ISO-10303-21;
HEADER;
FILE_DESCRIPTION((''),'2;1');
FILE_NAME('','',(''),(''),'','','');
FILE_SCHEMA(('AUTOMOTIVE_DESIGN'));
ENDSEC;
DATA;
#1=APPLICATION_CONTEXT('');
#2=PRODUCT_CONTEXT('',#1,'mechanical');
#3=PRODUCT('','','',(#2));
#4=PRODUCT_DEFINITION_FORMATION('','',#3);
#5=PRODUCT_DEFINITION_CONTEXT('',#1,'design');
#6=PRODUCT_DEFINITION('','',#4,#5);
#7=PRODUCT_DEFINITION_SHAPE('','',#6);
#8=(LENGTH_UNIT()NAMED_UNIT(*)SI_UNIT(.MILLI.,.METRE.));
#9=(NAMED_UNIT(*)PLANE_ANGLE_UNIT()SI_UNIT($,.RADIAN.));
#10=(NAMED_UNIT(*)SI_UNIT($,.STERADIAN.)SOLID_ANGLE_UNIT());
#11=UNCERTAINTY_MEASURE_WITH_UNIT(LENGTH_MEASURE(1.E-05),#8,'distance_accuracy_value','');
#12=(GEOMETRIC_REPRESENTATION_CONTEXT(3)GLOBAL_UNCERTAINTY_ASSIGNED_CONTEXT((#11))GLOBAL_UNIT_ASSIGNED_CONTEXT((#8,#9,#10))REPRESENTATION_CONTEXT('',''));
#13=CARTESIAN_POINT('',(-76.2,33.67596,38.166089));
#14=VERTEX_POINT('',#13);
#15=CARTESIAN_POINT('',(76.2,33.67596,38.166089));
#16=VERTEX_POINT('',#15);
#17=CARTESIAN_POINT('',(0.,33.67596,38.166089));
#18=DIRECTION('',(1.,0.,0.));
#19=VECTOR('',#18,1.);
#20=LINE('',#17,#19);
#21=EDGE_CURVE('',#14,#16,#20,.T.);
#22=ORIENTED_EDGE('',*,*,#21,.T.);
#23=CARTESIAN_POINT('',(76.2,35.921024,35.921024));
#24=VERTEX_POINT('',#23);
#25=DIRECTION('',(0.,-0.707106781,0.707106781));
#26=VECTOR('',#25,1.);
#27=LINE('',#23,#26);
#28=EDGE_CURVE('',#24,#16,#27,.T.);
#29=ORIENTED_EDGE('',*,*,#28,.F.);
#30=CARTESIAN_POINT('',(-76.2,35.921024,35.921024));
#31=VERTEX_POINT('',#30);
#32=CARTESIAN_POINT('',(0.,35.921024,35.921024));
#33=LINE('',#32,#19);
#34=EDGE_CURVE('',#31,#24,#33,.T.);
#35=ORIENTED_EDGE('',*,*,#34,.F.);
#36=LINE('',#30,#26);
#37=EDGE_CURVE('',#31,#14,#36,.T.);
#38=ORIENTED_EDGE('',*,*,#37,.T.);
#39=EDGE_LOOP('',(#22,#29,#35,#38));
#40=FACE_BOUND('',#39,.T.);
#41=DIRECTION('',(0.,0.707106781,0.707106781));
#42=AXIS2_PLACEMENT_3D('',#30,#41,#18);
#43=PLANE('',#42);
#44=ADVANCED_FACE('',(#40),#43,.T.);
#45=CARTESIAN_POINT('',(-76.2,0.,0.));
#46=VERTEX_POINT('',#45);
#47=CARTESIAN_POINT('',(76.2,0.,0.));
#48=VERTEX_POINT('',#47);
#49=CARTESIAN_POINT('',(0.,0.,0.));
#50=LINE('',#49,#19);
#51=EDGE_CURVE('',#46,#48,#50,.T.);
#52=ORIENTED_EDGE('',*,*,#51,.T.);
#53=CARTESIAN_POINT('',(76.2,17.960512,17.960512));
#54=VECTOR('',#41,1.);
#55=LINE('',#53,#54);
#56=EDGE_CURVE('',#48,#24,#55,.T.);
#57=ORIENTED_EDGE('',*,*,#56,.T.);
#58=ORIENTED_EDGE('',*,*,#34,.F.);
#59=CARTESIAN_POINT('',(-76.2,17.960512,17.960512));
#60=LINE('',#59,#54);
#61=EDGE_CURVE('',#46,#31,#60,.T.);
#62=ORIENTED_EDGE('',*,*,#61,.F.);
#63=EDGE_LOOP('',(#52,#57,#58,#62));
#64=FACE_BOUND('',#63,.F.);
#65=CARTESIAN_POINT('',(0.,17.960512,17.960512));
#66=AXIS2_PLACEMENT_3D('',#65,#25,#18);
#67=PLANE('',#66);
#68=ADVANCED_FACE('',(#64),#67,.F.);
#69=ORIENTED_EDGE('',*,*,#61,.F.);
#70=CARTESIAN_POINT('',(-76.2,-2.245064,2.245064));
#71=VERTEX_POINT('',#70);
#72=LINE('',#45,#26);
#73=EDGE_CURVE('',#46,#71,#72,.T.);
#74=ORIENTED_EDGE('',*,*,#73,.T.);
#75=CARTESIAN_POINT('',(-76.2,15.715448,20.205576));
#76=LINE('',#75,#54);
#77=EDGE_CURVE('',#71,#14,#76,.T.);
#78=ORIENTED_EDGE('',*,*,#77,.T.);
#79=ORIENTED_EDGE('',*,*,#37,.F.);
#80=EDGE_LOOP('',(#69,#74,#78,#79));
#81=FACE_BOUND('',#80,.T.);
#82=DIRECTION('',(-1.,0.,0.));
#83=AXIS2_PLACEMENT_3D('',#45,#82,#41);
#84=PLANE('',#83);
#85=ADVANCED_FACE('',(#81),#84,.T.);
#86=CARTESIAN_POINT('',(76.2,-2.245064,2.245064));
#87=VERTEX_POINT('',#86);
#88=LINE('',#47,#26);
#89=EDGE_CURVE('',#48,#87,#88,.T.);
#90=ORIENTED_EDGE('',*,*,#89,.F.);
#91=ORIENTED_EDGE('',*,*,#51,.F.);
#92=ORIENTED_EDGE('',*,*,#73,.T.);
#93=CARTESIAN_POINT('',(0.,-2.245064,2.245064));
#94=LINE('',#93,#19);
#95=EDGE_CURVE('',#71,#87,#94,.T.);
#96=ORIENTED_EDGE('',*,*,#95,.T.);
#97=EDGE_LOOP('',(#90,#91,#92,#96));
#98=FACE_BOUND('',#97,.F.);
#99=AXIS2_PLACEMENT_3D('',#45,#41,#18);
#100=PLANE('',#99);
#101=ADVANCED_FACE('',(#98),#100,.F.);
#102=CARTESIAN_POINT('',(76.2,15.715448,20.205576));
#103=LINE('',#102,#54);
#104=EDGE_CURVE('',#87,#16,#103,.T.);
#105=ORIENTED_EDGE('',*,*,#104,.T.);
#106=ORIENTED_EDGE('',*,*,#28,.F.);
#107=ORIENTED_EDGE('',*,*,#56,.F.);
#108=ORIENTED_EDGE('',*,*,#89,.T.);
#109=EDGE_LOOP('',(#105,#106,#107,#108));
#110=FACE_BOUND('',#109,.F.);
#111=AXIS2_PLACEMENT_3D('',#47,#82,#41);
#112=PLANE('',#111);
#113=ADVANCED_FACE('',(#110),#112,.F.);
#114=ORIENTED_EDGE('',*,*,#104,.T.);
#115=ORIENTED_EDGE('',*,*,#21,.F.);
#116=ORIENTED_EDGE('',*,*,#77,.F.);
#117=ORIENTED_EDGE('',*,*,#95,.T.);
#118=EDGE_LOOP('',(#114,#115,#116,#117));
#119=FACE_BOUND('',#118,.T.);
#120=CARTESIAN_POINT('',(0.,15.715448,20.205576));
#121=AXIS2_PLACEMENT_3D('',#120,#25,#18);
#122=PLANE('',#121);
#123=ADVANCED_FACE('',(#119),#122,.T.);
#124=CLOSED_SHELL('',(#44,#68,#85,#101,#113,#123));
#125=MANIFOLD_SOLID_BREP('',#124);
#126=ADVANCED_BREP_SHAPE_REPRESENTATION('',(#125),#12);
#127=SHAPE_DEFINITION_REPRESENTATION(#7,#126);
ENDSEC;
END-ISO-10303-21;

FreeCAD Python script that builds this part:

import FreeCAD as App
import Part
import Sketcher
from FreeCAD import Vector
Q = App.Units.Quantity

doc = App.newDocument("Part")
body = doc.addObject("PartDesign::Body", "Body")

sketch1 = body.newObject("Sketcher::SketchObject", "Sketch")
sketch1.Placement = App.Placement(Vector(0, 0, 0), App.Rotation(Vector(1, 0, 0), Vector(0, 0.707106781, 0.707106781), Vector(0, -0.707106781, 0.707106781), "ZXY"))
sketch1.addGeometry([
    Part.LineSegment(Vector(-76.2, 50.8, 0), Vector(-76.2, 0, 0)),
    Part.LineSegment(Vector(-76.2, 0, 0), Vector(76.2, 0, 0)),
    Part.LineSegment(Vector(76.2, 0, 0), Vector(76.2, 50.8, 0)),
    Part.LineSegment(Vector(76.2, 50.8, 0), Vector(-76.2, 50.8, 0)),
], False)
sketch1.addConstraint([
    Sketcher.Constraint("Coincident", 0, 2, 1, 1),
    Sketcher.Constraint("Coincident", 1, 2, 2, 1),
    Sketcher.Constraint("Coincident", 2, 2, 3, 1),
    Sketcher.Constraint("Coincident", 3, 2, 0, 1),
    Sketcher.Constraint("Vertical", 0),
    Sketcher.Constraint("Horizontal", 1),
    Sketcher.Constraint("Vertical", 2),
    Sketcher.Constraint("Horizontal", 3),
    Sketcher.Constraint("Symmetric", 0, 2, 1, 2, -1, 1),
    Sketcher.Constraint("DistanceX", 1, 1, 1, 2, Q("6 in")),
    Sketcher.Constraint("DistanceY", 0, 2, 0, 1, Q("2 in")),
])
pad1 = body.newObject("PartDesign::Pad", "Pad")
pad1.Profile = sketch1
pad1.Length = Q("0.125 in")

sketch2 = body.newObject("Sketcher::SketchObject", "Sketch001")
sketch2.AttachmentSupport = (doc.getObject("YZ_Plane"), [""])
sketch2.MapMode = "FlatFace"
sketch2.AttachmentOffset = App.Placement(Vector(0, 0, 3 * 25.4), App.Rotation())
sketch2.addGeometry(Part.Circle(Vector(3.367597, 5.61266, 0), Vector(0, 0, 1), 0.889), False)
sketch2.addConstraint([
    Sketcher.Constraint("Diameter", 0, Q("0.07 in")),
    Sketcher.Constraint("DistanceY", -1, 1, 0, 3, 5.61266),
    Sketcher.Constraint("DistanceX", -1, 1, 0, 3, 3.367597),
])
doc.recompute()
hole = body.newObject("PartDesign::Hole", "Hole")
hole.Profile = sketch2
hole.ThreadType = "None"
hole.Diameter = Q("0.07 in")
hole.DepthType = "Dimension"
hole.Depth = 12.246429
hole.DrillPoint = "Angled"
hole.DrillPointAngle = 118
body2 = doc.addObject("PartDesign::Body", "Body001")
doc.recompute()

body2.BaseFeature = body
doc.recompute()

mirroring = doc.addObject("Part::Mirroring", "Mirroring")
mirroring.Source = body
mirroring.Base = Vector(0, 0, 0)
mirroring.Normal = Vector(1, 0, 0)
body3 = doc.addObject("PartDesign::Body", "Body002")
body3.BaseFeature = mirroring
boolean = body2.newObject("PartDesign::Boolean", "Boolean")
boolean.Type = "Fuse"
boolean.addObjects([body3])
doc.recompute()
mirroring.Visibility = False

doc.recompute()
